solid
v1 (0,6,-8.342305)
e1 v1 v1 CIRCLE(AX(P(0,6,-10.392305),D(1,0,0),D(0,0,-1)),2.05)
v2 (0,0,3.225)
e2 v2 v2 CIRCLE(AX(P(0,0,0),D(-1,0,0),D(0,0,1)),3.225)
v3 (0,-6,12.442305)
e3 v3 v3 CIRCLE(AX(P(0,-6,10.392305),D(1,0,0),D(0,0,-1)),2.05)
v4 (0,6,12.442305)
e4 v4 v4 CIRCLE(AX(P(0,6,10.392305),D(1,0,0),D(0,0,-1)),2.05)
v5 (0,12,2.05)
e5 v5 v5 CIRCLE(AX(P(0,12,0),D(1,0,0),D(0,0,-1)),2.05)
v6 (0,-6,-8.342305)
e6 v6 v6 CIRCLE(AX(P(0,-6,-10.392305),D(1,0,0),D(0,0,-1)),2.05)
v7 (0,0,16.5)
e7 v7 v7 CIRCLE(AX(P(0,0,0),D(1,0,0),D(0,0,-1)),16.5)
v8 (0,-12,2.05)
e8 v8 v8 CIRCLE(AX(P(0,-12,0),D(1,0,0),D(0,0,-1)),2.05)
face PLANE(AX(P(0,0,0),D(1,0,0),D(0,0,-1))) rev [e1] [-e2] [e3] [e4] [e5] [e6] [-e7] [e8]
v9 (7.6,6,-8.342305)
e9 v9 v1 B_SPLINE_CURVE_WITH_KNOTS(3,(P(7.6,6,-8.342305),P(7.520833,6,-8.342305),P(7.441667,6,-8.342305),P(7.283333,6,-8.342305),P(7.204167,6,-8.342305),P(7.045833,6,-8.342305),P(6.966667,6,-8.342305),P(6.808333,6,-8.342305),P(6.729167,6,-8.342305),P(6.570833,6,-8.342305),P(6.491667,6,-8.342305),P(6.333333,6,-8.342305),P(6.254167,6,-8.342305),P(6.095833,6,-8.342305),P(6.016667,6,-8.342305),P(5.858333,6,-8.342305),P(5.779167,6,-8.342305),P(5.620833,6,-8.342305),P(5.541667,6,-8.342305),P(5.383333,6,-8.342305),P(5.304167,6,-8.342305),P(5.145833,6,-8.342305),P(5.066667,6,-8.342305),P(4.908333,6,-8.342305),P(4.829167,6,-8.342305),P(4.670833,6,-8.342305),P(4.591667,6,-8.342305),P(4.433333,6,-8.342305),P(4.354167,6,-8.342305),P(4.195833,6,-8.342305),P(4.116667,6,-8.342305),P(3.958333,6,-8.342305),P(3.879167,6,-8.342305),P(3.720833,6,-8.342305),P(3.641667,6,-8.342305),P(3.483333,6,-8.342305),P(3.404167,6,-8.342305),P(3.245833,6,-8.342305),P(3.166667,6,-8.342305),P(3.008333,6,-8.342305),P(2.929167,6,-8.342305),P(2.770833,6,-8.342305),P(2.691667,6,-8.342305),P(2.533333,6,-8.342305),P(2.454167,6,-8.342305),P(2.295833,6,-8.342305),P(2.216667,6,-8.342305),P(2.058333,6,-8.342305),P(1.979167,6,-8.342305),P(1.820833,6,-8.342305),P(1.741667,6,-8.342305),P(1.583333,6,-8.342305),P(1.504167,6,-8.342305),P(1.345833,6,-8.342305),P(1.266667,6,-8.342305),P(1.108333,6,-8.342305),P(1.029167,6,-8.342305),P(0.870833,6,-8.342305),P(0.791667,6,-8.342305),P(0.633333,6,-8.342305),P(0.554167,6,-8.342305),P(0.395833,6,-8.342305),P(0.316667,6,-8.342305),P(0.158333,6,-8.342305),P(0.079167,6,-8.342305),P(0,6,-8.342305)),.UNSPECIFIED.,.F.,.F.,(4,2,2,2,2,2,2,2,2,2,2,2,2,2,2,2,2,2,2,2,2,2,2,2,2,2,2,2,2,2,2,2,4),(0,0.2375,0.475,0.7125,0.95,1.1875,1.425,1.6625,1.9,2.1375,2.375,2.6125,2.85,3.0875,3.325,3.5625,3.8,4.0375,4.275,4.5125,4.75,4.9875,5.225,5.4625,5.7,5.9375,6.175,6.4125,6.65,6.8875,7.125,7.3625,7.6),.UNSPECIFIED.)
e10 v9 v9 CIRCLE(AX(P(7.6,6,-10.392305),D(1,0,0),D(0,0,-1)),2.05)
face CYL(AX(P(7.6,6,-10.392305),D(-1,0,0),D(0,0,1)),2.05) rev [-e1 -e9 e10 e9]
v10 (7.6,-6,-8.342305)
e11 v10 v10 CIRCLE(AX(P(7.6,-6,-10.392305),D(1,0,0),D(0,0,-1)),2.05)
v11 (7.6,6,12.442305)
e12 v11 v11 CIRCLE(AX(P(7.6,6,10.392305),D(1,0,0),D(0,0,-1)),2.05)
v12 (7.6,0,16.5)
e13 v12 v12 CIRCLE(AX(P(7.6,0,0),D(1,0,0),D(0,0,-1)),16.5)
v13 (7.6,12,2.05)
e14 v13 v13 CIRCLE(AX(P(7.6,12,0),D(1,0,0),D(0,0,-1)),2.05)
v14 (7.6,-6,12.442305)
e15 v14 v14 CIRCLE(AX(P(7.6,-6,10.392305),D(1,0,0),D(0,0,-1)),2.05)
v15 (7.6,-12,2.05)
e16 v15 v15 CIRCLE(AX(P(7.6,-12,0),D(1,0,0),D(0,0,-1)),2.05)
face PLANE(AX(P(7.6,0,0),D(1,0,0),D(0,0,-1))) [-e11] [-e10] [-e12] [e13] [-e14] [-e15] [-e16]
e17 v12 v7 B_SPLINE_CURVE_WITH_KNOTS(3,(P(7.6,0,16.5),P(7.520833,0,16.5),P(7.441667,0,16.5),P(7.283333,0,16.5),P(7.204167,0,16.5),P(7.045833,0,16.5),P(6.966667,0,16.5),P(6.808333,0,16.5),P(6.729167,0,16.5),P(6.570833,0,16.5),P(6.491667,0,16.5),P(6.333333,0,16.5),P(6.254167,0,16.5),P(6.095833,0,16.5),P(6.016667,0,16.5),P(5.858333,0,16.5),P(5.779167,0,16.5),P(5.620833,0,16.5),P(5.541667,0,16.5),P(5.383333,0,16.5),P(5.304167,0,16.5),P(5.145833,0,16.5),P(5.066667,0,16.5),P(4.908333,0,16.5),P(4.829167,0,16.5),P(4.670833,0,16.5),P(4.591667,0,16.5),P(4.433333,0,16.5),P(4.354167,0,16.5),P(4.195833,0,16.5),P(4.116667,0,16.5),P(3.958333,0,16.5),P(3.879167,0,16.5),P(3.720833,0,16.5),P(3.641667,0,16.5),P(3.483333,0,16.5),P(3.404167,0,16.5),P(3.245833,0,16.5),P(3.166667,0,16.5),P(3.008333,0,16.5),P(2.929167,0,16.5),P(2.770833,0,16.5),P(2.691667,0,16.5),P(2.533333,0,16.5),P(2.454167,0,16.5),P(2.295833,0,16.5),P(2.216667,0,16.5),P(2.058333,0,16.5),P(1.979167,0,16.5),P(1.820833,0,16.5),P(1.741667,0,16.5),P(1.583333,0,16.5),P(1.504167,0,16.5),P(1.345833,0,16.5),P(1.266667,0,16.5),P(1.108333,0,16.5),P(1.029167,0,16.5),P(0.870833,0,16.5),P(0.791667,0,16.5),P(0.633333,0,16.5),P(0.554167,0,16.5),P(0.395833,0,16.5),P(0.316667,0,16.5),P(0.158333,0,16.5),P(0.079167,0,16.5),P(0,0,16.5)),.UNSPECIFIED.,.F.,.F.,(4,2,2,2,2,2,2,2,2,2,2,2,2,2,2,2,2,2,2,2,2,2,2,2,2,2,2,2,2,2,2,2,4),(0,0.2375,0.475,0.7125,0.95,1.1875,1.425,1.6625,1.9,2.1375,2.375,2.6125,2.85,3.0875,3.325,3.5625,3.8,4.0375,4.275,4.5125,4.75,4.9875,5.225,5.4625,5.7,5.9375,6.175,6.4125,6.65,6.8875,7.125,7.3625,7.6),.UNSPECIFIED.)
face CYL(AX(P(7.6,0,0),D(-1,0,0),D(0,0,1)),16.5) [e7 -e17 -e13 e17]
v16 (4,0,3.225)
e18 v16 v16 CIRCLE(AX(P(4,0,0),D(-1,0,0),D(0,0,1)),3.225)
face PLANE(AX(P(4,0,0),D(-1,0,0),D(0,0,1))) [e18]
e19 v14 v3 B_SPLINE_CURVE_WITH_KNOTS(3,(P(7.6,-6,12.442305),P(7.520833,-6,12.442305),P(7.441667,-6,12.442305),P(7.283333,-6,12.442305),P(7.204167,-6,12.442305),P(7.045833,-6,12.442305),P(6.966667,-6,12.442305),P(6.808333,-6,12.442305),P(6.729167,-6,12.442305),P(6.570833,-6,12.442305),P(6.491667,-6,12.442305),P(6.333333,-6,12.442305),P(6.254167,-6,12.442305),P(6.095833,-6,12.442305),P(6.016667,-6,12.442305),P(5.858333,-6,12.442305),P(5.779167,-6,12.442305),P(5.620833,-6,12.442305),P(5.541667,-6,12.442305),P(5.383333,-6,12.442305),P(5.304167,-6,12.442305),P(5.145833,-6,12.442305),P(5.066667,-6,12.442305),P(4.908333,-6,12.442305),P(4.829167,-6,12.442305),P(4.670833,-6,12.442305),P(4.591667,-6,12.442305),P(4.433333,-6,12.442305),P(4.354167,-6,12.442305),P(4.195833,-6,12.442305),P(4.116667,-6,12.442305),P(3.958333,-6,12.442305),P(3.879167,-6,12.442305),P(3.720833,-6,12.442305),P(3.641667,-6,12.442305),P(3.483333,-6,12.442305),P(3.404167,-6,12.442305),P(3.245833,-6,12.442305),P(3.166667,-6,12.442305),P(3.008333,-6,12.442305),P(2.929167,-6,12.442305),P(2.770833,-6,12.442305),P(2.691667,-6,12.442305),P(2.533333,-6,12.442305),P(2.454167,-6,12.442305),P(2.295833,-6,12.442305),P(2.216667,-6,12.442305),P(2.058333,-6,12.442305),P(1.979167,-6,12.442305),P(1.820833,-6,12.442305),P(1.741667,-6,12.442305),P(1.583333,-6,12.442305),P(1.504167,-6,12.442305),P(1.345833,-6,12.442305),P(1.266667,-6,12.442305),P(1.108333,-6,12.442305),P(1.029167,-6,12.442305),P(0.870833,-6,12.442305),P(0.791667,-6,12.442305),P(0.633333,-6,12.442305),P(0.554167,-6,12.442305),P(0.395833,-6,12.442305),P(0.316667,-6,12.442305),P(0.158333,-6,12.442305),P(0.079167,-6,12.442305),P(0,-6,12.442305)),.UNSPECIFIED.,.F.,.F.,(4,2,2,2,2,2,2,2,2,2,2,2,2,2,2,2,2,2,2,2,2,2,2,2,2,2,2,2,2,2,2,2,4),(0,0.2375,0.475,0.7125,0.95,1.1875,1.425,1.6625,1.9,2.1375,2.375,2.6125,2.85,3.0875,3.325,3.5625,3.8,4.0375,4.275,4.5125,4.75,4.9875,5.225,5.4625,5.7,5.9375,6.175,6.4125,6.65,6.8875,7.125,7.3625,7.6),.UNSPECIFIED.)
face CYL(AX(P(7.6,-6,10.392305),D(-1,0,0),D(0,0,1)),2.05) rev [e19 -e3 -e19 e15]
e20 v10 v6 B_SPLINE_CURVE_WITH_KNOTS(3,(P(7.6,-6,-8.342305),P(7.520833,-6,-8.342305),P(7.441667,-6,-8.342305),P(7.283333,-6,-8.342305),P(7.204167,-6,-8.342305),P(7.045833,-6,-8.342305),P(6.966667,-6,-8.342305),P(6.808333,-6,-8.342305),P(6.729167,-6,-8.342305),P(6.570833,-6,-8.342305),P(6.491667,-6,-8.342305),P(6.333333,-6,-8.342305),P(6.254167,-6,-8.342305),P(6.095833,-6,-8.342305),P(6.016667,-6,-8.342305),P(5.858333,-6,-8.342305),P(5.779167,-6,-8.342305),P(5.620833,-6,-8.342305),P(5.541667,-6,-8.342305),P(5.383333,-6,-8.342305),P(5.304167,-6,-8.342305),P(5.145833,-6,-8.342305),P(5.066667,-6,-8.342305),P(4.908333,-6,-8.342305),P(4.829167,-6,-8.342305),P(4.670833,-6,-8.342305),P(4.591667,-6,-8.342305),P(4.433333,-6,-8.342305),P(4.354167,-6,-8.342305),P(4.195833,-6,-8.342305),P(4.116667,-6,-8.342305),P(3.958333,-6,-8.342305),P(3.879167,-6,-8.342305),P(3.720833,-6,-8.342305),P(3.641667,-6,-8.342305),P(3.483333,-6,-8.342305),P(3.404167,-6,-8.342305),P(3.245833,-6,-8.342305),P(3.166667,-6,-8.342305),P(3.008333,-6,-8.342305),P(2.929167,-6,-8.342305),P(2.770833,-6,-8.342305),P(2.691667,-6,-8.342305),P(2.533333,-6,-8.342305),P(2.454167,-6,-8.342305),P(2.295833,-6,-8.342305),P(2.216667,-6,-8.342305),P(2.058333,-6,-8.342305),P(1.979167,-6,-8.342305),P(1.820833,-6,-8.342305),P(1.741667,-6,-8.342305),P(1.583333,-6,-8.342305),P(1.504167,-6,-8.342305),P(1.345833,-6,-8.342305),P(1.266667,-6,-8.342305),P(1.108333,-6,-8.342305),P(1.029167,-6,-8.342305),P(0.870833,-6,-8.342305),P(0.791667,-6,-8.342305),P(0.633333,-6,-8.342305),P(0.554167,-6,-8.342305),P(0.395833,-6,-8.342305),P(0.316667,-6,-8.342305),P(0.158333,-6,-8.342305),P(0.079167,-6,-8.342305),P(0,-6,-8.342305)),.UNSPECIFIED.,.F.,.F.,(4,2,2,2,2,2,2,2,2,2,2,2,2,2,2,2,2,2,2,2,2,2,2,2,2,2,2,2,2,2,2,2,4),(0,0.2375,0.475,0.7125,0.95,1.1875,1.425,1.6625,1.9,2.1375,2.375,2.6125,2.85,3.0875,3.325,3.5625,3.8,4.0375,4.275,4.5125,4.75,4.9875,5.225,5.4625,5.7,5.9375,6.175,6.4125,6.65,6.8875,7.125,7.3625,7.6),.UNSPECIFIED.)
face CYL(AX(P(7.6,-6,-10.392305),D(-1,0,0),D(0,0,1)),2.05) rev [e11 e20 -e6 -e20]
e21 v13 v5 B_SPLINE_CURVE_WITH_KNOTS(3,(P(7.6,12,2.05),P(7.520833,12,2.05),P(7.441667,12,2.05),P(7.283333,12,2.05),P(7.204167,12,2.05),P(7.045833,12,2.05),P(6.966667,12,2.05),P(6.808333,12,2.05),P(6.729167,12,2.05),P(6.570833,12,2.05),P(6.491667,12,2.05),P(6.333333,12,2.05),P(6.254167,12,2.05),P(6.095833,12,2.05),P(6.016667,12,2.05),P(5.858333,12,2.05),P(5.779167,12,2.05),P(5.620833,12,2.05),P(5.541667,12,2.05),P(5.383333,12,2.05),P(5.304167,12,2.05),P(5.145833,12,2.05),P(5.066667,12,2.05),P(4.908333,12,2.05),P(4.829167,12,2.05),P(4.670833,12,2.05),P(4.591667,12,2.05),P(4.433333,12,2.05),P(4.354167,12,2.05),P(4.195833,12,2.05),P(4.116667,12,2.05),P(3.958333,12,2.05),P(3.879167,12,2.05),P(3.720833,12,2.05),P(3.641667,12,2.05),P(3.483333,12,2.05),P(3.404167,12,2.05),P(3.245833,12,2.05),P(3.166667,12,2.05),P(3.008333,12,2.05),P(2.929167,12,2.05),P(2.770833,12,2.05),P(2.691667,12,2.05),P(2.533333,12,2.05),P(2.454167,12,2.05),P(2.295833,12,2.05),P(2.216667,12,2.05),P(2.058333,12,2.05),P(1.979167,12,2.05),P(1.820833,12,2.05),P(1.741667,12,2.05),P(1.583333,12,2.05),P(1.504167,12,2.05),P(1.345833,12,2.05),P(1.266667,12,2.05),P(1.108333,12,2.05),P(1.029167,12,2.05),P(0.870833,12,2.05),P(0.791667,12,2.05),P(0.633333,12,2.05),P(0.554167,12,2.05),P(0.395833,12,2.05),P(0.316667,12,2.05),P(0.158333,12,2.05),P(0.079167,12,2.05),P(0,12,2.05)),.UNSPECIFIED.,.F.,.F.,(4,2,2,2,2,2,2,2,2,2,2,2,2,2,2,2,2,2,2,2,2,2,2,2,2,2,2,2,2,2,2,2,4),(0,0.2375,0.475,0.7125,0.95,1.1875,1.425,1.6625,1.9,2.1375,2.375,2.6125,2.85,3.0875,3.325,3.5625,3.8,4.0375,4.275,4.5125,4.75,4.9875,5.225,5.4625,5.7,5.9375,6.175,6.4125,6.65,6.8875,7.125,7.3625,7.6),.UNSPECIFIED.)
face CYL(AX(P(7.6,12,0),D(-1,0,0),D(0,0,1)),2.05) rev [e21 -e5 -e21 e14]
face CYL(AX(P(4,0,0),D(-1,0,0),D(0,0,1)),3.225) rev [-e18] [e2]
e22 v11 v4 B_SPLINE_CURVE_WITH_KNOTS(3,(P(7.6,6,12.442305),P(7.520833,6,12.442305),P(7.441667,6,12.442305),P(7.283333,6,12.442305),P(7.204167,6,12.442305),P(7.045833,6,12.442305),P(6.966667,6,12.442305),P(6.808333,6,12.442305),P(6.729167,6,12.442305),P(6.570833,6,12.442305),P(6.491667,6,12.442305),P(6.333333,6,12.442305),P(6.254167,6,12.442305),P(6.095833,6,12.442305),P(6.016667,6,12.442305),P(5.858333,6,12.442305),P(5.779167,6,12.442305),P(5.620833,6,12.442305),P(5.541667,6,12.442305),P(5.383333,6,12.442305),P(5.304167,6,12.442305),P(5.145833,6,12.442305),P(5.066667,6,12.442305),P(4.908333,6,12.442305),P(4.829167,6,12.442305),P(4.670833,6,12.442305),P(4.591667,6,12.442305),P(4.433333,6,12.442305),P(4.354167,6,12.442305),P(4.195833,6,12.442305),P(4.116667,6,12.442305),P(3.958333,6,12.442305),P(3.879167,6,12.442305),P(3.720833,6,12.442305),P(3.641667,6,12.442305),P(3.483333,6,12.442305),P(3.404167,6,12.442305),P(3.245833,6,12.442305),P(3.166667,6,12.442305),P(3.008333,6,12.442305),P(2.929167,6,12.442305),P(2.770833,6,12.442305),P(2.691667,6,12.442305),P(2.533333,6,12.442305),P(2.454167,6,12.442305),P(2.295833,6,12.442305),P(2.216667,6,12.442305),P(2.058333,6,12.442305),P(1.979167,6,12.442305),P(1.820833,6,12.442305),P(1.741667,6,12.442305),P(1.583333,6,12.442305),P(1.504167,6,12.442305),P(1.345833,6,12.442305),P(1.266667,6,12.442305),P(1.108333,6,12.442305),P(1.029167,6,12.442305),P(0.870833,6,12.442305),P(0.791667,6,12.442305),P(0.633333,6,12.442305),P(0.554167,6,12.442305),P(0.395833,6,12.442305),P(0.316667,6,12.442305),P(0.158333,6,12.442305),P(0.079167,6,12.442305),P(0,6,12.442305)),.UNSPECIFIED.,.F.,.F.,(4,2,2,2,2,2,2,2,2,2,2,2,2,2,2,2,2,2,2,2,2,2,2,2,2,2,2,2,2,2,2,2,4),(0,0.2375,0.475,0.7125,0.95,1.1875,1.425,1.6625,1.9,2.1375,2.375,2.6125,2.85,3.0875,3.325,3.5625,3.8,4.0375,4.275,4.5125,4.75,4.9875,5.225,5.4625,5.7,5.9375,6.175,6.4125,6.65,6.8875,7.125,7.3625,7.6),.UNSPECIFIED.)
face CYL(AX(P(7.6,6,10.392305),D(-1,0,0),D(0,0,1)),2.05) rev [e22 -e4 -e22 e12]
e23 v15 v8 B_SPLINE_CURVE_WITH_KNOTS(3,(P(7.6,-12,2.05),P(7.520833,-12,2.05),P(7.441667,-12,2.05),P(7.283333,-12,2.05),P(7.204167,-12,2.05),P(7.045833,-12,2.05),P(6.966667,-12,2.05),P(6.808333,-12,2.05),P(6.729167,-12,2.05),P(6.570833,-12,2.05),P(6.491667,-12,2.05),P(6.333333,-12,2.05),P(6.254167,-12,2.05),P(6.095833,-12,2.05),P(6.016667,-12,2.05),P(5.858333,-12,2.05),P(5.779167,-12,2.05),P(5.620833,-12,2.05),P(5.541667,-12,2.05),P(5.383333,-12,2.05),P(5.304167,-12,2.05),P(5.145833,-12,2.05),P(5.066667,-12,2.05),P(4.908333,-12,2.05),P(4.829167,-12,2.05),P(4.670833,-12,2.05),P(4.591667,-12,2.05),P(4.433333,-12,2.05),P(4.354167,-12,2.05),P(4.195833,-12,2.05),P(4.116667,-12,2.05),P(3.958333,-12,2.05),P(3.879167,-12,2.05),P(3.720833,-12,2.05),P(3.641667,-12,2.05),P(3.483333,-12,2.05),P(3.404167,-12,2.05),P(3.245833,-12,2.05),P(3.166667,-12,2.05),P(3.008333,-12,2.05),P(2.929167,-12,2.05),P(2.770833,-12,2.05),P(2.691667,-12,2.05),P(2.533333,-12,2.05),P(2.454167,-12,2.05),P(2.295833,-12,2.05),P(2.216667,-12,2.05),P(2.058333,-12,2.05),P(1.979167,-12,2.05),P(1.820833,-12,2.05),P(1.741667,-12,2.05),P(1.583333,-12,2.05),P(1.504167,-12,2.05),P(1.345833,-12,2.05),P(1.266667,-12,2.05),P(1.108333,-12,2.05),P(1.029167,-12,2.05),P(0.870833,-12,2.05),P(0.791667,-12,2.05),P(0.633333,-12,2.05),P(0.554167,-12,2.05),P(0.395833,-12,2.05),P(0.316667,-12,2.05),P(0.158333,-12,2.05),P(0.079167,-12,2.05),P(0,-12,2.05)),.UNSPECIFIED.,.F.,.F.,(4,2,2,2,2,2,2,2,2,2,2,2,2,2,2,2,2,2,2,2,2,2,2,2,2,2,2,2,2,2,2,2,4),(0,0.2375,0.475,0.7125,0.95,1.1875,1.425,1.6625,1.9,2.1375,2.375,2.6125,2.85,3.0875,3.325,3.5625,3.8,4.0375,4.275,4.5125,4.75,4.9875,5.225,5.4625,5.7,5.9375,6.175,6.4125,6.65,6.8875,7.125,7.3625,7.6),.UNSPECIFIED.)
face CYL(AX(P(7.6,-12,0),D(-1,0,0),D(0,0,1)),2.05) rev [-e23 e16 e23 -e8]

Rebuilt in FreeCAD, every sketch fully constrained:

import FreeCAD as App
import Part
import Sketcher
Q = App.Units.Quantity

doc = App.newDocument("Part")
body = doc.addObject("PartDesign::Body", "Body")

# Sketch on YZ plane
sketch1 = body.newObject("Sketcher::SketchObject", "Sketch")
sketch1.AttachmentSupport = (doc.getObject("YZ_Plane"), [""])
sketch1.MapMode = "FlatFace"
sketch1.addGeometry([
    Part.Circle(App.Vector(0, 0, 0), App.Vector(0, 0, 1), 16.5),  # 0
    Part.Circle(App.Vector(6, -10.4, 0), App.Vector(0, 0, 1), 2),  # 1
    Part.Circle(App.Vector(12, 0, 0), App.Vector(0, 0, 1), 2),  # 2
    Part.Circle(App.Vector(6, 10.4, 0), App.Vector(0, 0, 1), 2),  # 3
    Part.Circle(App.Vector(-6, -10.4, 0), App.Vector(0, 0, 1), 2),  # 4
    Part.Circle(App.Vector(-12, 0, 0), App.Vector(0, 0, 1), 2),  # 5
    Part.Circle(App.Vector(-6, 10.4, 0), App.Vector(0, 0, 1), 2),  # 6
], False)
sketch1.addConstraint([
    Sketcher.Constraint("Coincident", 0, 3, -1, 1),
    Sketcher.Constraint("Equal", 1, 2),
    Sketcher.Constraint("Equal", 2, 3),
    Sketcher.Constraint("Equal", 3, 4),
    Sketcher.Constraint("Equal", 4, 5),
    Sketcher.Constraint("Equal", 5, 6),
    Sketcher.Constraint("Symmetric", 3, 3, 4, 3, -1, 1),
    Sketcher.Constraint("Symmetric", 2, 3, 5, 3, -1, 1),
    Sketcher.Constraint("Symmetric", 1, 3, 6, 3, -1, 1),
    Sketcher.Constraint("Symmetric", 1, 3, 4, 3, -2),
    Sketcher.Constraint("PointOnObject", 2, 3, -1),
    Sketcher.Constraint("Diameter", 0, Q("33 mm")),
    Sketcher.Constraint("Diameter", 1, Q("4.1 mm")),
    Sketcher.Constraint("DistanceX", -1, 1, 1, 3, Q("6 mm")),
    Sketcher.Constraint("DistanceX", -1, 1, 2, 3, Q("12 mm")),
    Sketcher.Constraint("DistanceY", 1, 3, 3, 3, Q("20.78461 mm")),
])
pad1 = body.newObject("PartDesign::Pad", "Pad")
pad1.Profile = sketch1
pad1.Length = 7.6

# Sketch on YZ plane
sketch2 = body.newObject("Sketcher::SketchObject", "Sketch001")
sketch2.AttachmentSupport = (doc.getObject("YZ_Plane"), [""])
sketch2.MapMode = "FlatFace"
sketch2.addGeometry(Part.Circle(App.Vector(0, 0, 0), App.Vector(0, 0, 1), 3.2), False)
sketch2.addConstraint([
    Sketcher.Constraint("Coincident", 0, 3, -1, 1),
    Sketcher.Constraint("Diameter", 0, Q("6.45 mm")),
])
pocket1 = body.newObject("PartDesign::Pocket", "Pocket")
pocket1.Profile = sketch2
pocket1.Length = 4
pocket1.Reversed = True

doc.recompute()
